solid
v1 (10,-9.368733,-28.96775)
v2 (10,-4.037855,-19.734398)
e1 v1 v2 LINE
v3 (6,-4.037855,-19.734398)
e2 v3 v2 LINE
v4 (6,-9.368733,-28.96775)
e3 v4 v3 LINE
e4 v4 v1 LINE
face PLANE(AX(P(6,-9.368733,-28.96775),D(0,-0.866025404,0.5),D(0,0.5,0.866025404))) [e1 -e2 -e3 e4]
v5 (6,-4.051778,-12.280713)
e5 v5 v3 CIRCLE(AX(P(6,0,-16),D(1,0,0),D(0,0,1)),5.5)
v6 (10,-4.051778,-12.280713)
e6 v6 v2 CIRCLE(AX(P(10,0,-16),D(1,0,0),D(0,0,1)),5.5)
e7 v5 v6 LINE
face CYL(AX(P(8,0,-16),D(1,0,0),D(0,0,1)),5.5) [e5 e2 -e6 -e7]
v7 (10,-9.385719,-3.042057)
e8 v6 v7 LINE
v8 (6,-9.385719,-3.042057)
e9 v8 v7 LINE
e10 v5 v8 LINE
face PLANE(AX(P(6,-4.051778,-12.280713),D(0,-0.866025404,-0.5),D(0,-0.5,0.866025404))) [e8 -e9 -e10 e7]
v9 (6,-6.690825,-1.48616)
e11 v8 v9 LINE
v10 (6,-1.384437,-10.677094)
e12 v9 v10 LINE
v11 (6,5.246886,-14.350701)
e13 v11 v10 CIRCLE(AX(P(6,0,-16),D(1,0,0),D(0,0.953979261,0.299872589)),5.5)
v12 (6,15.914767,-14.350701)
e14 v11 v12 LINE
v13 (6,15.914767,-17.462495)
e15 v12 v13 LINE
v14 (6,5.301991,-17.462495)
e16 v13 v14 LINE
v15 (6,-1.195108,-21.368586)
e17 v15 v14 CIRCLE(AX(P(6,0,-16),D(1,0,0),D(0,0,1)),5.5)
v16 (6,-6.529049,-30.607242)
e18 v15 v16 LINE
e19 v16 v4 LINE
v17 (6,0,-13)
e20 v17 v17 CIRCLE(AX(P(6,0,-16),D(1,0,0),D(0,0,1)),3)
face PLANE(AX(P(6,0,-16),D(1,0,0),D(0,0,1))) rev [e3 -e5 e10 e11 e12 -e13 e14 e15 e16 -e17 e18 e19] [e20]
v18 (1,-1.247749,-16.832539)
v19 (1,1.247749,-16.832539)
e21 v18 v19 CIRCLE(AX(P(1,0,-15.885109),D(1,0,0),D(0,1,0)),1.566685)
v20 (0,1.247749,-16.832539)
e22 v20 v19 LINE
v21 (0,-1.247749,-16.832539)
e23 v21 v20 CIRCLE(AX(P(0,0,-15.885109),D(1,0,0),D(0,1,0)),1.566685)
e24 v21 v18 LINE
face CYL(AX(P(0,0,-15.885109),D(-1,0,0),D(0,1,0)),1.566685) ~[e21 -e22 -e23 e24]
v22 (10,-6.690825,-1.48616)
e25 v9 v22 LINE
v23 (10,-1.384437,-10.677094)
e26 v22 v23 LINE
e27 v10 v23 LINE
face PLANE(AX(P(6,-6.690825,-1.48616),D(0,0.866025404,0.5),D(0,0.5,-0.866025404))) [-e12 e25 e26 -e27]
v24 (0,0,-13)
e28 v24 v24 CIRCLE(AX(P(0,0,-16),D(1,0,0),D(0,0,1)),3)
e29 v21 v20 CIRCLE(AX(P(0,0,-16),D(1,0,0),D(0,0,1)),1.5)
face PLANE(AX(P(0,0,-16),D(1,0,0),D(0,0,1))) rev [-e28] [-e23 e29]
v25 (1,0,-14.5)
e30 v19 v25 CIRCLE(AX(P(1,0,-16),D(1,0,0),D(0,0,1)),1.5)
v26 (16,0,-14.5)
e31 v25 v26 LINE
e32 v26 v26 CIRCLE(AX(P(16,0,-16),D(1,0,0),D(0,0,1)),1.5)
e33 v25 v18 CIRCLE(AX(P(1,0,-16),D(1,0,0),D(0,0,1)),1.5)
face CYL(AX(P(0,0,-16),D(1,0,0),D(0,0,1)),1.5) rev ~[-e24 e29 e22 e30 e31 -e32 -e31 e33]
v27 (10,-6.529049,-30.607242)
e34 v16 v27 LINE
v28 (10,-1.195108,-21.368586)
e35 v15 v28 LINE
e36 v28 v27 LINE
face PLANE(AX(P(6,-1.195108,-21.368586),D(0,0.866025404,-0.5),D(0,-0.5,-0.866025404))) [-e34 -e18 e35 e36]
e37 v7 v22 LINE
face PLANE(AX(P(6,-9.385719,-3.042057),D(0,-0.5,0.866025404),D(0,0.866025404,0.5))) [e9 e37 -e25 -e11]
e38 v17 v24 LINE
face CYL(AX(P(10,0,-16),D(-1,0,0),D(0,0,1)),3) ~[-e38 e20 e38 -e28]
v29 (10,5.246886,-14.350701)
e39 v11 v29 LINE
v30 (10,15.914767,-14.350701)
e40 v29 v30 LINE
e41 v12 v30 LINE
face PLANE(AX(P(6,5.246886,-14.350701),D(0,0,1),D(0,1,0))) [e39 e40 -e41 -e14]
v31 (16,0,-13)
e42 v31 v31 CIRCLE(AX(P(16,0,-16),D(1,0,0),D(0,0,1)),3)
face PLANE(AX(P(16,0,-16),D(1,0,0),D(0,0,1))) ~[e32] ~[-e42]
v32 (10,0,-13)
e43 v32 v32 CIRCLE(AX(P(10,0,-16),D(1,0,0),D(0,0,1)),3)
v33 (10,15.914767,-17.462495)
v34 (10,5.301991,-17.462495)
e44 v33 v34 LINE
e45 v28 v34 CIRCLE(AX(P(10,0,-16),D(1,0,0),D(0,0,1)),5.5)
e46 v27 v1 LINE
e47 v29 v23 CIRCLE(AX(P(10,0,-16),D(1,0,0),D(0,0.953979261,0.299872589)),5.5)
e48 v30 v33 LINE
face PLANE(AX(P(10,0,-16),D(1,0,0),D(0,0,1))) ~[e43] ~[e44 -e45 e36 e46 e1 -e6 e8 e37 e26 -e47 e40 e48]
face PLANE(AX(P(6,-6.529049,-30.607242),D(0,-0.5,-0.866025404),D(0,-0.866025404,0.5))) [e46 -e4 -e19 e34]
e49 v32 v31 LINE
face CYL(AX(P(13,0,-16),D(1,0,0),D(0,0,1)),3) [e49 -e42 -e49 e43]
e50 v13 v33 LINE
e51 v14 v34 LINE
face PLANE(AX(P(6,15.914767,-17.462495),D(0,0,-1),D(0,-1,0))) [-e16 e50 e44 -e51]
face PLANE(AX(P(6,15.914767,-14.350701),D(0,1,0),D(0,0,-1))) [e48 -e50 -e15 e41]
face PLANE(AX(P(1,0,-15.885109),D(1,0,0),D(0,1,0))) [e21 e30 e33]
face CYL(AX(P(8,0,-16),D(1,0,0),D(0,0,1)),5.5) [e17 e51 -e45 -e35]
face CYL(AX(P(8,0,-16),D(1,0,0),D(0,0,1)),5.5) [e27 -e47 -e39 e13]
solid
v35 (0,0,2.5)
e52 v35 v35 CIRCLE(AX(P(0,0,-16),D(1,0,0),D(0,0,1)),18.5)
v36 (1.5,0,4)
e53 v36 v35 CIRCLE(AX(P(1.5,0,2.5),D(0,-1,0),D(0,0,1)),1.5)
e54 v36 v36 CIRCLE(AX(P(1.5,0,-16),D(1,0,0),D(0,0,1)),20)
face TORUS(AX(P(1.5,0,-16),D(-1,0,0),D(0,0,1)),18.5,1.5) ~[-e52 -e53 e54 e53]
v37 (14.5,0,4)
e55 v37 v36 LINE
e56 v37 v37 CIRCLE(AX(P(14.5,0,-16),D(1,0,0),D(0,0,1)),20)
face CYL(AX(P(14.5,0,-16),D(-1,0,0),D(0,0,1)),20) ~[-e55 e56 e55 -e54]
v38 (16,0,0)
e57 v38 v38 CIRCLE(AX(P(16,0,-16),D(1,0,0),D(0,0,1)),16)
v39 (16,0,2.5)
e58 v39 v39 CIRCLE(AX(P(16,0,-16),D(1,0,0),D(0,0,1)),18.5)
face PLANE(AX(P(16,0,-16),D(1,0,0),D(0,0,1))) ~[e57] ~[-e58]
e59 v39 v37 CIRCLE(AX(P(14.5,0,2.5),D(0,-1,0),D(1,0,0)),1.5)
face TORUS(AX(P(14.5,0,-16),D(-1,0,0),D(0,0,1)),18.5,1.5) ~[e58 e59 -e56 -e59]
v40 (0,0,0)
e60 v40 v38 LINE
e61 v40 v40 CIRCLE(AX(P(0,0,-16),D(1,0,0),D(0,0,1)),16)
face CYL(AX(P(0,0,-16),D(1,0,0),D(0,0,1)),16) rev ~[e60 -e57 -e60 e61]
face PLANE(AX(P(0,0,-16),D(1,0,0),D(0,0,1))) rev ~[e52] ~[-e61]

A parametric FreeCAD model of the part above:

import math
import FreeCAD as App
import Part
import Sketcher

V = App.Vector
Q = App.Units.Quantity

doc = App.newDocument("Part")
body = doc.addObject("PartDesign::Body", "Body")

sketch1 = doc.addObject("Sketcher::SketchObject", "Sketch")
body.addObject(sketch1)
sketch1.AttachmentSupport = (doc.XZ_Plane, [""])
sketch1.MapMode = "FlatFace"
sketch1.addGeometry([
    Part.LineSegment(V(0, 2.5, 0), V(0, 0, 0)),
    Part.LineSegment(V(0, 0, 0), V(16, 0, 0)),
    Part.LineSegment(V(16, 0, 0), V(16, 2.5, 0)),
    Part.ArcOfCircle(Part.Circle(V(14.5, 2.5, 0), V(0, 0, 1), 1.5), math.radians(0), math.radians(90)),
    Part.LineSegment(V(14.5, 4, 0), V(1.5, 4, 0)),
    Part.ArcOfCircle(Part.Circle(V(1.5, 2.5, 0), V(0, 0, 1), 1.5), math.radians(90), math.radians(180)),
], False)
sketch1.addGeometry(Part.LineSegment(V(0, -16, 0), V(16, -16, 0)), True)
sketch1.addConstraint([
    Sketcher.Constraint("Coincident", 0, 2, 1, 1),
    Sketcher.Constraint("Coincident", 1, 2, 2, 1),
    Sketcher.Constraint("Tangent", 2, 2, 3, 1),
    Sketcher.Constraint("Tangent", 3, 2, 4, 1),
    Sketcher.Constraint("Tangent", 4, 2, 5, 1),
    Sketcher.Constraint("Tangent", 5, 2, 0, 1),
    Sketcher.Constraint("Vertical", 0),
    Sketcher.Constraint("Horizontal", 1),
    Sketcher.Constraint("Vertical", 2),
    Sketcher.Constraint("Horizontal", 4),
    Sketcher.Constraint("Horizontal", 6),
    Sketcher.Constraint("Coincident", 0, 2, -1, 1),
    Sketcher.Constraint("Equal", 3, 5),
    Sketcher.Constraint("PointOnObject", 6, 1, -2),
    Sketcher.Constraint("Vertical", 2, 2, 6, 2),
    Sketcher.Constraint("Radius", 3, 1.5),
    Sketcher.Constraint("DistanceX", 1, 1, 1, 2, 16.0),
    Sketcher.Constraint("DistanceY", 0, 2, 0, 1, 2.5),
    Sketcher.Constraint("DistanceY", 6, 1, -1, 1, 16.0),
])
revolution = doc.addObject("PartDesign::Revolution", "Revolution")
body.addObject(revolution)
revolution.Profile = sketch1
revolution.ReferenceAxis = (sketch1, ["Axis0"])
revolution.Angle = 360
body2 = doc.addObject("PartDesign::Body", "Body001")

sketch2 = doc.addObject("Sketcher::SketchObject", "Sketch001")
body2.addObject(sketch2)
sketch2.AttachmentSupport = (doc.getObject("XZ_Plane001"), [""])
sketch2.MapMode = "FlatFace"
sketch2.addGeometry([
    Part.LineSegment(V(10, -13, 0), V(10, -10.5, 0)),
    Part.LineSegment(V(10, -10.5, 0), V(6, -10.5, 0)),
    Part.LineSegment(V(6, -10.5, 0), V(6, -13, 0)),
    Part.LineSegment(V(6, -13, 0), V(0, -13, 0)),
    Part.LineSegment(V(0, -13, 0), V(0, -14.5, 0)),
    Part.LineSegment(V(0, -14.5, 0), V(16, -14.5, 0)),
    Part.LineSegment(V(16, -14.5, 0), V(16, -13, 0)),
    Part.LineSegment(V(16, -13, 0), V(10, -13, 0)),
], False)
sketch2.addGeometry(Part.LineSegment(V(0, -16, 0), V(16, -16, 0)), True)
sketch2.addConstraint([
    Sketcher.Constraint("Coincident", 0, 2, 1, 1),
    Sketcher.Constraint("Coincident", 1, 2, 2, 1),
    Sketcher.Constraint("Coincident", 2, 2, 3, 1),
    Sketcher.Constraint("Coincident", 3, 2, 4, 1),
    Sketcher.Constraint("Coincident", 4, 2, 5, 1),
    Sketcher.Constraint("Coincident", 5, 2, 6, 1),
    Sketcher.Constraint("Coincident", 6, 2, 7, 1),
    Sketcher.Constraint("Coincident", 7, 2, 0, 1),
    Sketcher.Constraint("Vertical", 0),
    Sketcher.Constraint("Horizontal", 1),
    Sketcher.Constraint("Vertical", 2),
    Sketcher.Constraint("Horizontal", 3),
    Sketcher.Constraint("Vertical", 4),
    Sketcher.Constraint("Horizontal", 5),
    Sketcher.Constraint("Vertical", 6),
    Sketcher.Constraint("Horizontal", 7),
    Sketcher.Constraint("Horizontal", 8),
    Sketcher.Constraint("PointOnObject", 3, 2, -2),
    Sketcher.Constraint("PointOnObject", 8, 1, -2),
    Sketcher.Constraint("Horizontal", 3, 2, 6, 2),
    Sketcher.Constraint("Vertical", 6, 2, 8, 2),
    Sketcher.Constraint("Equal", 3, 7),
    Sketcher.Constraint("DistanceX", 1, 2, 1, 1, 4.0),
    Sketcher.Constraint("DistanceX", 3, 2, 3, 1, 6.0),
    Sketcher.Constraint("DistanceY", 0, 1, 0, 2, 2.5),
    Sketcher.Constraint("DistanceY", 4, 2, 4, 1, 1.5),
    Sketcher.Constraint("DistanceY", 2, 2, -1, 1, 13.0),
    Sketcher.Constraint("DistanceY", 8, 1, -1, 1, 16.0),
])
revolution2 = doc.addObject("PartDesign::Revolution", "Revolution001")
body2.addObject(revolution2)
revolution2.Profile = sketch2
revolution2.ReferenceAxis = (sketch2, ["Axis0"])
revolution2.Angle = 360
body.AllowCompound = True
doc.recompute()

boolean = doc.addObject("PartDesign::Boolean", "Boolean")
body.addObject(boolean)
boolean.Type = "Fuse"
boolean.addObjects([body2])

sketch3 = doc.addObject("Sketcher::SketchObject", "Sketch002")
body.addObject(sketch3)
sketch3.AttachmentSupport = (doc.YZ_Plane, [""])
sketch3.MapMode = "FlatFace"
sketch3.AttachmentOffset = App.Placement(V(0, 0, 6), App.Rotation())
sketch3.addGeometry([
    Part.LineSegment(V(-6.7, -1.5, 0), V(-1.4, -10.7, 0)),
    Part.ArcOfCircle(Part.Circle(V(0, -16, 0), V(0, 0, 1), 5.5), math.radians(105), math.radians(137)),
    Part.LineSegment(V(-4.1, -12.3, 0), V(-9.4, -3, 0)),
    Part.LineSegment(V(-9.4, -3, 0), V(-6.7, -1.5, 0)),
    Part.ArcOfCircle(Part.Circle(V(0, -16, 0), V(0, 0, 1), 5.5), math.radians(-137), math.radians(-103)),
    Part.LineSegment(V(-1.2, -21.4, 0), V(-6.5, -30.6, 0)),
    Part.LineSegment(V(-6.5, -30.6, 0), V(-9.4, -29, 0)),
    Part.LineSegment(V(-9.4, -29, 0), V(-4, -19.7, 0)),
    Part.ArcOfCircle(Part.Circle(V(0, -16, 0), V(0, 0, 1), 5.5), math.radians(-15), math.radians(17)),
    Part.LineSegment(V(5.2, -14.4, 0), V(15.9, -14.4, 0)),
    Part.LineSegment(V(15.9, -14.4, 0), V(15.9, -17.5, 0)),
    Part.LineSegment(V(15.9, -17.5, 0), V(5.3, -17.5, 0)),
], False)
sketch3.addConstraint([
    Sketcher.Constraint("Coincident", 0, 2, 1, 1),
    Sketcher.Constraint("Coincident", 1, 2, 2, 1),
    Sketcher.Constraint("Coincident", 2, 2, 3, 1),
    Sketcher.Constraint("Coincident", 3, 2, 0, 1),
    Sketcher.Constraint("Coincident", 4, 2, 5, 1),
    Sketcher.Constraint("Coincident", 5, 2, 6, 1),
    Sketcher.Constraint("Coincident", 6, 2, 7, 1),
    Sketcher.Constraint("Coincident", 7, 2, 4, 1),
    Sketcher.Constraint("Coincident", 8, 2, 9, 1),
    Sketcher.Constraint("Coincident", 9, 2, 10, 1),
    Sketcher.Constraint("Coincident", 10, 2, 11, 1),
    Sketcher.Constraint("Coincident", 11, 2, 8, 1),
    Sketcher.Constraint("Horizontal", 9),
    Sketcher.Constraint("Vertical", 10),
    Sketcher.Constraint("Horizontal", 11),
    Sketcher.Constraint("Coincident", 4, 3, 1, 3),
    Sketcher.Constraint("Coincident", 8, 3, 1, 3),
    Sketcher.Constraint("Equal", 1, 4),
    Sketcher.Constraint("Equal", 4, 8),
    Sketcher.Constraint("PointOnObject", 1, 3, -2),
    Sketcher.Constraint("Parallel", 0, 2),
    Sketcher.Constraint("Perpendicular", 2, 3),
    Sketcher.Constraint("Perpendicular", 5, 6),
    Sketcher.Constraint("Perpendicular", 6, 7),
    Sketcher.Constraint("Equal", 2, 5),
    Sketcher.Constraint("Radius", 1, 5.5),
    Sketcher.Constraint("Angle", 0, Q("-60 deg")),
    Sketcher.Constraint("Angle", 5, Q("-120 deg")),
    Sketcher.Constraint("DistanceY", 1, 3, -1, 1, 16.0),
    Sketcher.Constraint("DistanceX", 9, 1, 9, 2, 10.667881),
    Sketcher.Constraint("DistanceY", 8, 2, -1, 1, 14.350701),
    Sketcher.Constraint("DistanceX", 4, 2, 11, 2, 6.497099),
    Sketcher.Constraint("Distance", 2, 10.667881),
    Sketcher.Constraint("DistanceX", 11, 2, 11, 1, 10.612776),
    Sketcher.Constraint("DistanceX", 1, 2, -1, 1, 4.051778),
    Sketcher.Constraint("DistanceY", 3, 2, -1, 1, 1.48616),
    Sketcher.Constraint("DistanceY", 6, 2, -1, 1, 28.96775),
])
pad1 = doc.addObject("PartDesign::Pad", "Pad")
body.addObject(pad1)
pad1.Profile = sketch3
pad1.Length = 4

sketch4 = doc.addObject("Sketcher::SketchObject", "Sketch003")
body.addObject(sketch4)
sketch4.AttachmentSupport = (doc.YZ_Plane, [""])
sketch4.MapMode = "FlatFace"
sketch4.addGeometry(Part.Circle(V(0, -15.9, 0), V(0, 0, 1), 1.6), False)
sketch4.addConstraint([
    Sketcher.Constraint("PointOnObject", 0, 3, -2),
    Sketcher.Constraint("Diameter", 0, 3.13337),
    Sketcher.Constraint("DistanceY", 0, 3, -1, 1, 15.885109),
])
pad2 = doc.addObject("PartDesign::Pad", "Pad001")
body.addObject(pad2)
pad2.Profile = sketch4
pad2.Length = 1

doc.recompute()
